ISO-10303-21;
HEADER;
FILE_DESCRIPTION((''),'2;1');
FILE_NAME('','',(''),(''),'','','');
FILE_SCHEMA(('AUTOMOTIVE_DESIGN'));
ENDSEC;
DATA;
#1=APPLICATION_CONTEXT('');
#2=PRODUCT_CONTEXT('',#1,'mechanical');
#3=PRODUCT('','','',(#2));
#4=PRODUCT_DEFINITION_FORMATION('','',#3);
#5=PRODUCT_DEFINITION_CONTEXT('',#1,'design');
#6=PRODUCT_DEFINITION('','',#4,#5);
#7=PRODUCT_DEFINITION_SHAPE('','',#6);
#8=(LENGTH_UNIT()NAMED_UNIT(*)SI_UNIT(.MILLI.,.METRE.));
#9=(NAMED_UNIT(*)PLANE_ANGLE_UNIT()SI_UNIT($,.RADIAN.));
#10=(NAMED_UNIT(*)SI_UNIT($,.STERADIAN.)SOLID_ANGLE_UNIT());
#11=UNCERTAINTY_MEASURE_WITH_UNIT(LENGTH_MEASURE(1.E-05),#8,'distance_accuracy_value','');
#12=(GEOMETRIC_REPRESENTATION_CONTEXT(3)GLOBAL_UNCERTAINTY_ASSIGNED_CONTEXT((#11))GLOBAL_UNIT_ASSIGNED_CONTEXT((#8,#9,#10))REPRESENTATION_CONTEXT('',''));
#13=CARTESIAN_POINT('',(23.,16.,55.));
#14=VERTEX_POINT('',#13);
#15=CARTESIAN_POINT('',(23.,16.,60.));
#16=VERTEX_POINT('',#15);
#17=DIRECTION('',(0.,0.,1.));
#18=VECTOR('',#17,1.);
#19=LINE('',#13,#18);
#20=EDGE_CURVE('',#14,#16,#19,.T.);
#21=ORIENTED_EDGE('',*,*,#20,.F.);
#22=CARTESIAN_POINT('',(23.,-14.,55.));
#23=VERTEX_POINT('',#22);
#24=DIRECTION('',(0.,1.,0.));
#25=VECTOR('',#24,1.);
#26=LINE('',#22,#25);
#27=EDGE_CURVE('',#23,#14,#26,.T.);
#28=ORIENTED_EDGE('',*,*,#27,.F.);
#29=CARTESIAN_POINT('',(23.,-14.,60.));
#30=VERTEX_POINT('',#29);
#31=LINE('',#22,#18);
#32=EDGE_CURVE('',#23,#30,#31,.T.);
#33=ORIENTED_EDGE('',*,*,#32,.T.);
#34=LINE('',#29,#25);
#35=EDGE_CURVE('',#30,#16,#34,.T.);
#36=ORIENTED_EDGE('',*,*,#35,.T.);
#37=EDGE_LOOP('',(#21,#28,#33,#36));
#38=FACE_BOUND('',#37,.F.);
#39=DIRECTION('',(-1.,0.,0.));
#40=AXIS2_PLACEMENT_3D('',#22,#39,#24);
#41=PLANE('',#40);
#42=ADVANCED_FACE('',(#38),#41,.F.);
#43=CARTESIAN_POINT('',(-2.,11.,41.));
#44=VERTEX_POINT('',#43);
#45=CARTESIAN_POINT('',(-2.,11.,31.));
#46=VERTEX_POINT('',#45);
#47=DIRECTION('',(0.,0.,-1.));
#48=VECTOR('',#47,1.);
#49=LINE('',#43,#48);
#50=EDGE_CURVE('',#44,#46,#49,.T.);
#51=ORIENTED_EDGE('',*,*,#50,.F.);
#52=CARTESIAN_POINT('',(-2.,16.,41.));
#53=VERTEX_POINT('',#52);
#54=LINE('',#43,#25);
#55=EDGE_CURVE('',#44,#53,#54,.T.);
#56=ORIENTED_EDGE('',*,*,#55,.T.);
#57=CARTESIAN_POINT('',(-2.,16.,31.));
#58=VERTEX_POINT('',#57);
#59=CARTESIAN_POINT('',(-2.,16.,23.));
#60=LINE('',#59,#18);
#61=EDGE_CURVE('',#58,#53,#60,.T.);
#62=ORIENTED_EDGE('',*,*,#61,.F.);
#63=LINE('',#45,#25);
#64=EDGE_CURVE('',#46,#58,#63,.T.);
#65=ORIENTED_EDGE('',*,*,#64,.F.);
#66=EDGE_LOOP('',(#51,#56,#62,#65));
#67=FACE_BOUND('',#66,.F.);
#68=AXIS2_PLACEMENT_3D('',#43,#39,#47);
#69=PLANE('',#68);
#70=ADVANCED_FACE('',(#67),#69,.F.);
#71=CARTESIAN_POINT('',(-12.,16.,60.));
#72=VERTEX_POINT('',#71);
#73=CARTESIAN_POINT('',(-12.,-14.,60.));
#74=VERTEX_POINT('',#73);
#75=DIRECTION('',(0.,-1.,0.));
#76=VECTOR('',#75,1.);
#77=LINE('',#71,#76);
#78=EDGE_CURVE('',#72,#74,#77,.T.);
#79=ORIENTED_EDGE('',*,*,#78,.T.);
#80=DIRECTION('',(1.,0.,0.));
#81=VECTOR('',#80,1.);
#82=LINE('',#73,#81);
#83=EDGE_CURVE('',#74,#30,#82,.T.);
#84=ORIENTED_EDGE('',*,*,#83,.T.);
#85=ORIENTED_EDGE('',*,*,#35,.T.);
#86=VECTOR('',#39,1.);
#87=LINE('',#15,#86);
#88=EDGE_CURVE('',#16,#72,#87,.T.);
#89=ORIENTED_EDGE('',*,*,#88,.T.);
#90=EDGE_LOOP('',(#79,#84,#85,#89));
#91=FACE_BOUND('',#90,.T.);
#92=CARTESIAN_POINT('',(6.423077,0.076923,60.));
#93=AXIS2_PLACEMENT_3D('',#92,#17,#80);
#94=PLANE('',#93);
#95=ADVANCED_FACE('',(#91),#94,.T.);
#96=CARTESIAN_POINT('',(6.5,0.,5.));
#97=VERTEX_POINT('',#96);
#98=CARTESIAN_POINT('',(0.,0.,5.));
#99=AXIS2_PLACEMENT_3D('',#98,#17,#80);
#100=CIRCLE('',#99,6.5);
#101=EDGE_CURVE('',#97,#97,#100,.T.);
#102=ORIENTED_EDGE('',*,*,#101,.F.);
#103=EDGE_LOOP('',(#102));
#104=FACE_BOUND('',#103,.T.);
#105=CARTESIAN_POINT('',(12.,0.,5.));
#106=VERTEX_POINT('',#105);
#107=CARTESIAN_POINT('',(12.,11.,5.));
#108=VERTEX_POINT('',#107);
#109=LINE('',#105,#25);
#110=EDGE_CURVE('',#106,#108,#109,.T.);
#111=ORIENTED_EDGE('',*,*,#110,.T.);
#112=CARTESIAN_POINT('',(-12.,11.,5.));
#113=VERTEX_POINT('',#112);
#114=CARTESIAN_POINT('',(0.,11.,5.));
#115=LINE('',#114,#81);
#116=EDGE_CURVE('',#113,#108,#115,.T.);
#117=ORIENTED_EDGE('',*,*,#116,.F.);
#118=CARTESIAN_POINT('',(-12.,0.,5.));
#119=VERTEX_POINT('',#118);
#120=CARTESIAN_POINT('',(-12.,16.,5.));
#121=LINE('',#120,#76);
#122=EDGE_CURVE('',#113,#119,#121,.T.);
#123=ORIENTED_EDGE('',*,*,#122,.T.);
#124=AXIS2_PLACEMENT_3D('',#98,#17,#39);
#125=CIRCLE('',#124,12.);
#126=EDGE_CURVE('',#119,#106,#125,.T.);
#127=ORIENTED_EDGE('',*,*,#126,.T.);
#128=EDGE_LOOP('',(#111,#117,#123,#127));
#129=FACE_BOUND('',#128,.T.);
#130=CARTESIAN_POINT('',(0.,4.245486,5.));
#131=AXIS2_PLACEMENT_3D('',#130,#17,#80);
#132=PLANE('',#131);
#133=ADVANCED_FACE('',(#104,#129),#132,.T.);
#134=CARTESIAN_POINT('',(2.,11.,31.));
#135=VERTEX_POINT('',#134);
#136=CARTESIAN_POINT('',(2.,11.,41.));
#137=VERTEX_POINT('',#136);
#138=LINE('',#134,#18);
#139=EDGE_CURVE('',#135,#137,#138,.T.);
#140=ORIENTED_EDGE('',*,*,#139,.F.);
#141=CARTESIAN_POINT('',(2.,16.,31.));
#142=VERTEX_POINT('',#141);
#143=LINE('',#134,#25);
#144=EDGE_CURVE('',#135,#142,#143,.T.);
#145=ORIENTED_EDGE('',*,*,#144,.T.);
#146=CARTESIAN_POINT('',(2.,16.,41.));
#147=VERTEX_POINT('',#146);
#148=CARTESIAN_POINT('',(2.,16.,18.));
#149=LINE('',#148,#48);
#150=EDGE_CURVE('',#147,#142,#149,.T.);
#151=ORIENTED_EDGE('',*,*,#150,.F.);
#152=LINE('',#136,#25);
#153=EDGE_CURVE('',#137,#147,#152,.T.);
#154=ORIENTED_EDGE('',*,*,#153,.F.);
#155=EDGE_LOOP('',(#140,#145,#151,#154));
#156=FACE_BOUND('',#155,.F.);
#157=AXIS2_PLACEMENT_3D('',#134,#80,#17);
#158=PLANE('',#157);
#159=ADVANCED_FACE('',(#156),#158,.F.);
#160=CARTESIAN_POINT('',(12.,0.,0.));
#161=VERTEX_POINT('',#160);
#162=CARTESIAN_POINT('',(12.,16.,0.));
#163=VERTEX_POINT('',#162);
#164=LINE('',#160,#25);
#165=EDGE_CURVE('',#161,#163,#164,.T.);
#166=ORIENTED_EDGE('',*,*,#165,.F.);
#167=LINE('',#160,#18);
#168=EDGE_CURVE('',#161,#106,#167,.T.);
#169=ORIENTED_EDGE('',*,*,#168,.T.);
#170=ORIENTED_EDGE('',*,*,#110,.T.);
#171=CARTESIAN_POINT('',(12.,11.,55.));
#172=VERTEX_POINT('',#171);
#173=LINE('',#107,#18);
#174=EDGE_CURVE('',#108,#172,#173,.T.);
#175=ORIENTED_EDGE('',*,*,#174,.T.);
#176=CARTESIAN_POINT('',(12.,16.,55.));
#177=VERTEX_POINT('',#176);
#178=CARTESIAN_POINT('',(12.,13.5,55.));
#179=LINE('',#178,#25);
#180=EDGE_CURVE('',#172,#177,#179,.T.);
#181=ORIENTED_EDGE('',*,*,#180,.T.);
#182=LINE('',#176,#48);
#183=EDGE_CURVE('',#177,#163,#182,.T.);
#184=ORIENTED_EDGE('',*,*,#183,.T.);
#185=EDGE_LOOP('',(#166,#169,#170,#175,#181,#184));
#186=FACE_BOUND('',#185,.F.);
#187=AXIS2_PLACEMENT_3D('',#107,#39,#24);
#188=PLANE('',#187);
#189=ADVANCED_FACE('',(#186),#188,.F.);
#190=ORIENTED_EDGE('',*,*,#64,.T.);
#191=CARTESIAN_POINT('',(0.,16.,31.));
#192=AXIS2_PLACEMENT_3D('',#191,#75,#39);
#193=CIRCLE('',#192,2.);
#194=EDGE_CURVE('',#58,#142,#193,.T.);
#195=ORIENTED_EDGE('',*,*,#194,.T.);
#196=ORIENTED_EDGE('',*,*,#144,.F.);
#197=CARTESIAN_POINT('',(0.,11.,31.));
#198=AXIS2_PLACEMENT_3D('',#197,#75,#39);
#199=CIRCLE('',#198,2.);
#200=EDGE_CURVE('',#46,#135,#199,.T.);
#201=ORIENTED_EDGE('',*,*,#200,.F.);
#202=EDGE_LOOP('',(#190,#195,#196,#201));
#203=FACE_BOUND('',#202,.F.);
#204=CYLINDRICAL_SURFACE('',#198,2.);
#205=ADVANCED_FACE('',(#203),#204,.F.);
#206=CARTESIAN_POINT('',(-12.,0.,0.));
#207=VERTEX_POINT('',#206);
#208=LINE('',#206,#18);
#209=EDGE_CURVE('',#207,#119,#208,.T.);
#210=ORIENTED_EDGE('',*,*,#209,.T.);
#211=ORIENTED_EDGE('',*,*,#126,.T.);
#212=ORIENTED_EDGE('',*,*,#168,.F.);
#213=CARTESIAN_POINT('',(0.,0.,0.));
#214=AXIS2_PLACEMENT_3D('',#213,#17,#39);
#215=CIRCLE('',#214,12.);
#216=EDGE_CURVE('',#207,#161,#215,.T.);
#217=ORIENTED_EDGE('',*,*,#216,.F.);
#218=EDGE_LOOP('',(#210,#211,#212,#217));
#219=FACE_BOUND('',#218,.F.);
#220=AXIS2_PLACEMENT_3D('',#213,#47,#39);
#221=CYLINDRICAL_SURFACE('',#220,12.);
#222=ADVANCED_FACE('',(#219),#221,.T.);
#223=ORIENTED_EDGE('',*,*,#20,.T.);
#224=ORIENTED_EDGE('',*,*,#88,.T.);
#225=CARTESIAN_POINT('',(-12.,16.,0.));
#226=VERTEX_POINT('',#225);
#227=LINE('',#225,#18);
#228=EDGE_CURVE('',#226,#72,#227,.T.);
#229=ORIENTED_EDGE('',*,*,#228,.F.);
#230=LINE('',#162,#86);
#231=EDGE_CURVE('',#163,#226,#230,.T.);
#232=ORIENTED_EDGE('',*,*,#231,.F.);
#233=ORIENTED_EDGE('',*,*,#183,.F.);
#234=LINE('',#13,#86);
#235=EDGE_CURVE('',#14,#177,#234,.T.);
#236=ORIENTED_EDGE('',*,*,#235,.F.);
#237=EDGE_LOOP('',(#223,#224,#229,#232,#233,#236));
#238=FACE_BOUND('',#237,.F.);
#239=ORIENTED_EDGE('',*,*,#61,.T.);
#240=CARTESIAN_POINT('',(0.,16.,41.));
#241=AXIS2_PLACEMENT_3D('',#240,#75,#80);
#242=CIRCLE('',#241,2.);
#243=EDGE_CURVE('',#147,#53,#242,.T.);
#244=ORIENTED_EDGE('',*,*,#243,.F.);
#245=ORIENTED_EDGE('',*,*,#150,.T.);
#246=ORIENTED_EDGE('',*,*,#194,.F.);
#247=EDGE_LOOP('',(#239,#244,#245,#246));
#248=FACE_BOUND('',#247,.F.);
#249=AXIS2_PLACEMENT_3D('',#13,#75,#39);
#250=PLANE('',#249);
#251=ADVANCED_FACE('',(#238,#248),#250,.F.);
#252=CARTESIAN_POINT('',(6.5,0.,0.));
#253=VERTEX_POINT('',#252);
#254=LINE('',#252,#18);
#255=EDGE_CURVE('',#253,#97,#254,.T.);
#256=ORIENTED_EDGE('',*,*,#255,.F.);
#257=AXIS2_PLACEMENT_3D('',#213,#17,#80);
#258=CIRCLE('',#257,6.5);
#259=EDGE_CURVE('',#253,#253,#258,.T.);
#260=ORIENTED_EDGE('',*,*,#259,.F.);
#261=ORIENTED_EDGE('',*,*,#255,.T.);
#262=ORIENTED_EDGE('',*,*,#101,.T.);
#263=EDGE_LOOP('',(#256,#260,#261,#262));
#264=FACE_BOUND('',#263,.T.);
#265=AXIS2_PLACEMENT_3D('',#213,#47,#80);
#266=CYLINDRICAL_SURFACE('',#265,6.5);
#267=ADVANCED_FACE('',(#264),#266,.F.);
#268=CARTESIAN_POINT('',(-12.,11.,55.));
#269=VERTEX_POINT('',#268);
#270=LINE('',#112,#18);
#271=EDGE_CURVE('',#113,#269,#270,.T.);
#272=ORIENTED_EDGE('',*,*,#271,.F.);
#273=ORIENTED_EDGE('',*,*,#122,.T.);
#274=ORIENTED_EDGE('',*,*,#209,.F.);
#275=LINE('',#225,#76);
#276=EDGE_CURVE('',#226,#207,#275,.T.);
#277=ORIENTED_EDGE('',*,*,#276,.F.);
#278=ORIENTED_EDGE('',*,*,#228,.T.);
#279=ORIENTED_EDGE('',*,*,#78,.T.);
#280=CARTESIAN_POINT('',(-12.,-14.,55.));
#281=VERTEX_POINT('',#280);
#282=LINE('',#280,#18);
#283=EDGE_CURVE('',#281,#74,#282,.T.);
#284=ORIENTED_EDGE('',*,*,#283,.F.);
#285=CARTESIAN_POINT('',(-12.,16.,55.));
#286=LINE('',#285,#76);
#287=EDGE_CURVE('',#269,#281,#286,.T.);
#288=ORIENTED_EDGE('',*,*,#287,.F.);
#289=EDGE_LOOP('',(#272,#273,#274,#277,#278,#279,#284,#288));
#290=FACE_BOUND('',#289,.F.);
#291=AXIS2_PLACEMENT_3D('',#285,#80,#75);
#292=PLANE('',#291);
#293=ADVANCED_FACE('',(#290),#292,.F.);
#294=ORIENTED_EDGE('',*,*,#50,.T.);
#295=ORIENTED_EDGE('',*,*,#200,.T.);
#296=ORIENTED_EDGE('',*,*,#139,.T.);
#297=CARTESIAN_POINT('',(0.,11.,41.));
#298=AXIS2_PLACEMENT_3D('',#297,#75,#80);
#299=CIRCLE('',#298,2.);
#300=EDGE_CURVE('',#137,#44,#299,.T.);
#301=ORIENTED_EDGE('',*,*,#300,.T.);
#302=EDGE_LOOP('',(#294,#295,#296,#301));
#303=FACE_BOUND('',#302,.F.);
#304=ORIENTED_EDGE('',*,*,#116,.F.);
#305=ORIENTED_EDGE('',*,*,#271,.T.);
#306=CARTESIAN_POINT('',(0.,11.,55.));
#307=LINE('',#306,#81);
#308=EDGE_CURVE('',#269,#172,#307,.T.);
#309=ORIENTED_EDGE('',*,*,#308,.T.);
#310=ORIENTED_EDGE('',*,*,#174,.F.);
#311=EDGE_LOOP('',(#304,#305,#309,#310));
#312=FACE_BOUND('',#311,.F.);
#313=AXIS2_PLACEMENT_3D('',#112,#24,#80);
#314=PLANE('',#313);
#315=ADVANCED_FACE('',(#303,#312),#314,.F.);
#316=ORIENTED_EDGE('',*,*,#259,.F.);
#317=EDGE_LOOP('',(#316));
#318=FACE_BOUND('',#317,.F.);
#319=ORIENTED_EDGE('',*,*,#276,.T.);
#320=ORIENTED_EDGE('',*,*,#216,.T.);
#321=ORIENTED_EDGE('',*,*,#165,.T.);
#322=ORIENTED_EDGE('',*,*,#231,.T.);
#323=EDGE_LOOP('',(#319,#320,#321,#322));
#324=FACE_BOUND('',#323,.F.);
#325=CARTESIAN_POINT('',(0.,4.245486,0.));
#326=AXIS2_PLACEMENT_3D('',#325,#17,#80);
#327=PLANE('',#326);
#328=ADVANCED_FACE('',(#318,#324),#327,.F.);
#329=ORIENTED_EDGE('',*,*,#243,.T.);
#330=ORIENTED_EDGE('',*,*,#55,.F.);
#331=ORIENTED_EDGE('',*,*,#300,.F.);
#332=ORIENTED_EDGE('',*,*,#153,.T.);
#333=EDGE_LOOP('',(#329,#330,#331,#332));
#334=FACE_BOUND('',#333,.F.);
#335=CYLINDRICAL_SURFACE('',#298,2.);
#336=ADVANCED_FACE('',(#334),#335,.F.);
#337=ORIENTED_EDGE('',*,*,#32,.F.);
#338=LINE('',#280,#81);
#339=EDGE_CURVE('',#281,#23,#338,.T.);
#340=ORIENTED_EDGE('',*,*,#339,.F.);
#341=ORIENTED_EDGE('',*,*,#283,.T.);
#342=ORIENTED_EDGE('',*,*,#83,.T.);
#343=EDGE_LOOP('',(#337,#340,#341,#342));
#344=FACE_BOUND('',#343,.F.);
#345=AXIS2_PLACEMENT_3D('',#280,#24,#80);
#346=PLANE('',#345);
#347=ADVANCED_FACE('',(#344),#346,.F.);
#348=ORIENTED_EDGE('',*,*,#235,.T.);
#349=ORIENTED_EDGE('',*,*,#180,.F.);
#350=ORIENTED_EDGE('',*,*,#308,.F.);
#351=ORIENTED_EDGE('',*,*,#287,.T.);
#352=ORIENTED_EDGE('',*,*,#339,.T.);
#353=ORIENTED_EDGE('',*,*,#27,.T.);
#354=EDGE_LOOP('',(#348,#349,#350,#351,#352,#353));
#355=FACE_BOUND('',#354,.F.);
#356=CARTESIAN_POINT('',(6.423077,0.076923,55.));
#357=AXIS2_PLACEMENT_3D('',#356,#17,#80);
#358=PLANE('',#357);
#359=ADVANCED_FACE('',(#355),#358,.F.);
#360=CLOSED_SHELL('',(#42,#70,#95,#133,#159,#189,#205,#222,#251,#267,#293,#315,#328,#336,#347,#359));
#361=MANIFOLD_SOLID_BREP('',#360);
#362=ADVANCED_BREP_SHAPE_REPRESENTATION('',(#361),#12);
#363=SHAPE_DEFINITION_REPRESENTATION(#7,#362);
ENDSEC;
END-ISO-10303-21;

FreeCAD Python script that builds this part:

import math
import FreeCAD as App
import Part
import Sketcher

V = App.Vector
Q = App.Units.Quantity

doc = App.newDocument("Part")
body = doc.addObject("PartDesign::Body", "Body")

sketch1 = doc.addObject("Sketcher::SketchObject", "Sketch")
body.addObject(sketch1)
sketch1.AttachmentSupport = (doc.XY_Plane, [""])
sketch1.MapMode = "FlatFace"
sketch1.addGeometry([
    Part.LineSegment(V(-12, 16, 0), V(-12, 0, 0)),
    Part.ArcOfCircle(Part.Circle(V(0, 0, 0), V(0, 0, 1), 12), math.radians(180), math.radians(360)),
    Part.LineSegment(V(12, 0, 0), V(12, 16, 0)),
    Part.LineSegment(V(12, 16, 0), V(-12, 16, 0)),
    Part.Circle(V(0, 0, 0), V(0, 0, 1), 6),
], False)
sketch1.addConstraint([
    Sketcher.Constraint("Tangent", 0, 2, 1, 1),
    Sketcher.Constraint("Tangent", 1, 2, 2, 1),
    Sketcher.Constraint("Coincident", 2, 2, 3, 1),
    Sketcher.Constraint("Coincident", 3, 2, 0, 1),
    Sketcher.Constraint("Vertical", 0),
    Sketcher.Constraint("Vertical", 2),
    Sketcher.Constraint("Horizontal", 3),
    Sketcher.Constraint("Coincident", 1, 3, -1, 1),
    Sketcher.Constraint("Coincident", 4, 3, -1, 1),
    Sketcher.Constraint("Diameter", 4, Q("13 mm")),
    Sketcher.Constraint("Radius", 1, Q("12 mm")),
    Sketcher.Constraint("DistanceY", 0, 2, 0, 1, Q("16 mm")),
])
pad1 = doc.addObject("PartDesign::Pad", "Pad")
body.addObject(pad1)
pad1.Profile = sketch1
pad1.Length = 5

sketch2 = doc.addObject("Sketcher::SketchObject", "Sketch001")
body.addObject(sketch2)
sketch2.AttachmentSupport = (doc.XY_Plane, [""])
sketch2.MapMode = "FlatFace"
sketch2.AttachmentOffset = App.Placement(V(0, 0, 5), App.Rotation())
sketch2.addGeometry([
    Part.LineSegment(V(-12, 16, 0), V(-12, 11, 0)),
    Part.LineSegment(V(-12, 11, 0), V(12, 11, 0)),
    Part.LineSegment(V(12, 11, 0), V(12, 16, 0)),
    Part.LineSegment(V(12, 16, 0), V(-12, 16, 0)),
], False)
sketch2.addConstraint([
    Sketcher.Constraint("Coincident", 0, 2, 1, 1),
    Sketcher.Constraint("Coincident", 1, 2, 2, 1),
    Sketcher.Constraint("Coincident", 2, 2, 3, 1),
    Sketcher.Constraint("Coincident", 3, 2, 0, 1),
    Sketcher.Constraint("Vertical", 0),
    Sketcher.Constraint("Horizontal", 1),
    Sketcher.Constraint("Vertical", 2),
    Sketcher.Constraint("Horizontal", 3),
    Sketcher.Constraint("DistanceX", 1, 1, 1, 2, Q("24 mm")),
    Sketcher.Constraint("DistanceY", 0, 2, 0, 1, Q("5 mm")),
    Sketcher.Constraint("DistanceX", 0, 2, -1, 1, Q("12 mm")),
    Sketcher.Constraint("DistanceY", -1, 1, 0, 2, Q("11 mm")),
])
pad2 = doc.addObject("PartDesign::Pad", "Pad001")
body.addObject(pad2)
pad2.Profile = sketch2
pad2.Length = 50

sketch3 = doc.addObject("Sketcher::SketchObject", "Sketch002")
body.addObject(sketch3)
sketch3.AttachmentSupport = (doc.XZ_Plane, [""])
sketch3.MapMode = "FlatFace"
sketch3.AttachmentOffset = App.Placement(V(0, 0, -11), App.Rotation())
sketch3.addGeometry([
    Part.ArcOfCircle(Part.Circle(V(0, 41, 0), V(0, 0, 1), 2), math.radians(0), math.radians(180)),
    Part.LineSegment(V(-2, 41, 0), V(-2, 31, 0)),
    Part.ArcOfCircle(Part.Circle(V(0, 31, 0), V(0, 0, 1), 2), math.radians(180), math.radians(360)),
    Part.LineSegment(V(2, 31, 0), V(2, 41, 0)),
], False)
sketch3.addConstraint([
    Sketcher.Constraint("Tangent", 0, 2, 1, 1),
    Sketcher.Constraint("Tangent", 1, 2, 2, 1),
    Sketcher.Constraint("Tangent", 2, 2, 3, 1),
    Sketcher.Constraint("Tangent", 3, 2, 0, 1),
    Sketcher.Constraint("Vertical", 1),
    Sketcher.Constraint("Vertical", 3),
    Sketcher.Constraint("PointOnObject", 0, 3, -2),
    Sketcher.Constraint("Radius", 0, Q("2 mm")),
    Sketcher.Constraint("DistanceY", 1, 2, 1, 1, Q("10 mm")),
    Sketcher.Constraint("DistanceY", -1, 1, 0, 3, Q("41 mm")),
])
pocket1 = doc.addObject("PartDesign::Pocket", "Pocket")
body.addObject(pocket1)
pocket1.Profile = sketch3
pocket1.Type = "ThroughAll"

sketch4 = doc.addObject("Sketcher::SketchObject", "Sketch003")
body.addObject(sketch4)
sketch4.AttachmentSupport = (doc.XY_Plane, [""])
sketch4.MapMode = "FlatFace"
sketch4.AttachmentOffset = App.Placement(V(0, 0, 55), App.Rotation())
sketch4.addGeometry([
    Part.LineSegment(V(23, 16, 0), V(-12, 16, 0)),
    Part.LineSegment(V(-12, 16, 0), V(-12, -14, 0)),
    Part.LineSegment(V(-12, -14, 0), V(23, -14, 0)),
    Part.LineSegment(V(23, -14, 0), V(23, 16, 0)),
], False)
sketch4.addConstraint([
    Sketcher.Constraint("Coincident", 0, 2, 1, 1),
    Sketcher.Constraint("Coincident", 1, 2, 2, 1),
    Sketcher.Constraint("Coincident", 2, 2, 3, 1),
    Sketcher.Constraint("Coincident", 3, 2, 0, 1),
    Sketcher.Constraint("Horizontal", 0),
    Sketcher.Constraint("Vertical", 1),
    Sketcher.Constraint("Horizontal", 2),
    Sketcher.Constraint("Vertical", 3),
    Sketcher.Constraint("DistanceX", 0, 2, 0, 1, Q("35 mm")),
    Sketcher.Constraint("DistanceY", 1, 2, 1, 1, Q("30 mm")),
    Sketcher.Constraint("DistanceX", 0, 2, -1, 1, Q("12 mm")),
    Sketcher.Constraint("DistanceY", -1, 1, 0, 2, Q("16 mm")),
])
pad3 = doc.addObject("PartDesign::Pad", "Pad002")
body.addObject(pad3)
pad3.Profile = sketch4
pad3.Length = 5

doc.recompute()
